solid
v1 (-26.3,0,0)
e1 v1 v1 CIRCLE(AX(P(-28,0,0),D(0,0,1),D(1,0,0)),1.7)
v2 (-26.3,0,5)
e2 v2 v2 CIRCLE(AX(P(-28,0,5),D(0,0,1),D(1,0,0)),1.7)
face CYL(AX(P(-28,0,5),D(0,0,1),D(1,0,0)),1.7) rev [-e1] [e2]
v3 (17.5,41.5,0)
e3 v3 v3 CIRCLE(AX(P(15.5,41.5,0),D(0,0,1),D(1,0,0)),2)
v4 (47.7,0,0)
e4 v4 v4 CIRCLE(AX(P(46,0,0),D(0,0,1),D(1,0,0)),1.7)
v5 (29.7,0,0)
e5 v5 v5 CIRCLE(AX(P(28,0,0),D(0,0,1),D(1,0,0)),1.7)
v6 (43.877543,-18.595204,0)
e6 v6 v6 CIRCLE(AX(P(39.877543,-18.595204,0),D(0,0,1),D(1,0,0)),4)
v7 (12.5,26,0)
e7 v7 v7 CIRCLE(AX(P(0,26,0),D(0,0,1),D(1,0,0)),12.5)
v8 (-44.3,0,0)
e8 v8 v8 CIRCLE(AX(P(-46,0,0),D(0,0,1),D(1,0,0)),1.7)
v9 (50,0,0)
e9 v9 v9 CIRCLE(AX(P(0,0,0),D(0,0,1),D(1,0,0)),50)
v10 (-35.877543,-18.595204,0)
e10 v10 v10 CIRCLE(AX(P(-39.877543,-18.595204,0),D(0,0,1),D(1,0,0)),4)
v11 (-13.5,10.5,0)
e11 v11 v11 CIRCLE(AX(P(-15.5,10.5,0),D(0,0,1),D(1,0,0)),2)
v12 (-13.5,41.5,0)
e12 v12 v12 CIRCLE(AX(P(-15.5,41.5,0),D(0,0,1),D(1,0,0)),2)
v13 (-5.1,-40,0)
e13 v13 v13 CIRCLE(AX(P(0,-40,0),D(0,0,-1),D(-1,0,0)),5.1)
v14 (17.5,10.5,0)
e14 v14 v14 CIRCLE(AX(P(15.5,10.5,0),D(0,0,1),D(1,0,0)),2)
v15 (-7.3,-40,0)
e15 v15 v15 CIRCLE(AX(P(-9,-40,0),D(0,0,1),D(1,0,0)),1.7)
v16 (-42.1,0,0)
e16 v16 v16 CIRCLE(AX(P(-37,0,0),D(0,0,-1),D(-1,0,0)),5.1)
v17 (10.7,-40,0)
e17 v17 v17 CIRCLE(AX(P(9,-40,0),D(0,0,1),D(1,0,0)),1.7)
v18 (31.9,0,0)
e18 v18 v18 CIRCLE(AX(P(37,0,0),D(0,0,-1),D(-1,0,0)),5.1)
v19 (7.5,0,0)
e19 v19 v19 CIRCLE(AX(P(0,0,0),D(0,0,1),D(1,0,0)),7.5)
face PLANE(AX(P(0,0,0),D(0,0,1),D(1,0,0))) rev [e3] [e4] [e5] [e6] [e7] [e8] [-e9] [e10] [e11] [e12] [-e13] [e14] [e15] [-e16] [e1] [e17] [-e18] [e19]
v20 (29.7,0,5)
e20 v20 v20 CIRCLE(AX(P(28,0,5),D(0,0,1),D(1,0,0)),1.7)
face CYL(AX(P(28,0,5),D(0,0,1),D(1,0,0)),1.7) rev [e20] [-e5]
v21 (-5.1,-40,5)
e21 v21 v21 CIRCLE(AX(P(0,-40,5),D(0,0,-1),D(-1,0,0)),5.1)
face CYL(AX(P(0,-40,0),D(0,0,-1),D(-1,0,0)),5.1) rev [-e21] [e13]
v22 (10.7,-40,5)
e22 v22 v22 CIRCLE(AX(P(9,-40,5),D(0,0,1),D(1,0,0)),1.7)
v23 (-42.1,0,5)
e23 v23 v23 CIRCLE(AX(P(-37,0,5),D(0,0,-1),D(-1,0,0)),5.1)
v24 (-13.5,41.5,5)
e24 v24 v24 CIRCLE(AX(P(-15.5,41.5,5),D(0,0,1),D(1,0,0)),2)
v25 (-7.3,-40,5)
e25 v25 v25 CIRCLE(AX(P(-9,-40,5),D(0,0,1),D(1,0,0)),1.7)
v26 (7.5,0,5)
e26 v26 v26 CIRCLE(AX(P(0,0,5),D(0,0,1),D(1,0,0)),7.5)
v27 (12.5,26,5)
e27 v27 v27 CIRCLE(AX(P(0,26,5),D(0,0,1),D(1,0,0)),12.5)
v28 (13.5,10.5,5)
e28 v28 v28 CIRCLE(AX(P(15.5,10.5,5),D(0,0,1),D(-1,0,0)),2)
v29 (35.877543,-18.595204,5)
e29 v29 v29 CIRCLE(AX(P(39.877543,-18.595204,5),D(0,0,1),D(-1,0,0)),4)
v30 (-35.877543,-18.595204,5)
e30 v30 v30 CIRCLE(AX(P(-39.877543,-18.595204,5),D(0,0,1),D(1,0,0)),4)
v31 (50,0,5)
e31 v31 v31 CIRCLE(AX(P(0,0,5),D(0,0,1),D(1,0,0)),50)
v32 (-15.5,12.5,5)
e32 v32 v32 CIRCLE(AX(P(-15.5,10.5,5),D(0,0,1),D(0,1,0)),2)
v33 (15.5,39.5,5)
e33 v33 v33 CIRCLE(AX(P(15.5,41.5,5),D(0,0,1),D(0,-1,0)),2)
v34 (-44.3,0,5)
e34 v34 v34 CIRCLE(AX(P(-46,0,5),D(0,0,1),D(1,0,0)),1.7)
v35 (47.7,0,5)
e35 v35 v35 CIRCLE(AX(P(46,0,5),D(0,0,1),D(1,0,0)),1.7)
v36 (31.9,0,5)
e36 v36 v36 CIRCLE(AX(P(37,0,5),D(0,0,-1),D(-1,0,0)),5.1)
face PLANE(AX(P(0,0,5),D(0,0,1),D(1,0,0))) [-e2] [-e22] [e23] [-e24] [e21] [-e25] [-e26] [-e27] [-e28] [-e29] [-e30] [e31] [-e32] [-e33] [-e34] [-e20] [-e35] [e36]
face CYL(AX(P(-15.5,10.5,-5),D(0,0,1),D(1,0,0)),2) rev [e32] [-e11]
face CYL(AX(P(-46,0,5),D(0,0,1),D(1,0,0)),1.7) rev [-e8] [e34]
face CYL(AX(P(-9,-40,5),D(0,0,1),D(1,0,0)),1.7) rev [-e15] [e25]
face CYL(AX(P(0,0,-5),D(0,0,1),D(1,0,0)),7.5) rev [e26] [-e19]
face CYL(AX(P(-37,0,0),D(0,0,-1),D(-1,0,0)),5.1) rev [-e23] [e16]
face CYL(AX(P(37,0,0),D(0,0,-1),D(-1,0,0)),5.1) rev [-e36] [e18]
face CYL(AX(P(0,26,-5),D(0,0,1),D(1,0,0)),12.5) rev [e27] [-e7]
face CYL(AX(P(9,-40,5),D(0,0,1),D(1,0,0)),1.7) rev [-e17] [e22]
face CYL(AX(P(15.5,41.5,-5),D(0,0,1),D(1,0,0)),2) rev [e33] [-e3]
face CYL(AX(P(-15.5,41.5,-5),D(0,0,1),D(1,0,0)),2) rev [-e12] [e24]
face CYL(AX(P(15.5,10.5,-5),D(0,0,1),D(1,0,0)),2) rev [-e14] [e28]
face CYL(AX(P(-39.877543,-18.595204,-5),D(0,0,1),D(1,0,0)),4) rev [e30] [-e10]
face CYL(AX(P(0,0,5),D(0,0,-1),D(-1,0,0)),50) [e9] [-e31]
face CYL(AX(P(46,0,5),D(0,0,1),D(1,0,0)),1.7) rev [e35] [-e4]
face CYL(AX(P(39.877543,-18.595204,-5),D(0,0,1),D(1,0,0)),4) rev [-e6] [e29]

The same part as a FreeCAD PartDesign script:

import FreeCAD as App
import Part
import Sketcher
from FreeCAD import Vector

doc = App.newDocument("Part")
params = doc.addObject("Spreadsheet::Sheet", "Params")
for row, (alias, value) in enumerate([
    ("sketch1_diameter", "100 mm"),
    ("pad1_length", "5 mm"),
    ("sketch2_diameter", "10.2 mm"),
    ("hole_diameter", "10.2 mm"),
    ("sketch3_diameter", "3.4 mm"),
    ("hole2_diameter", "3.4 mm"),
    ("sketch4_diameter", "25 mm"),
    ("pocket1_length", "10 mm"),
    ("sketch5_diameter", "4 mm"),
    ("pocket2_length", "10 mm"),
    ("sketch6_diameter", "8 mm"),
    ("pocket3_length", "10 mm"),
    ("sketch7_diameter", "15 mm"),
    ("pocket4_length", "10 mm"),
], start=1):
    params.set(f"A{row}", alias)
    params.set(f"B{row}", "=" + value)
    params.setAlias(f"B{row}", alias)

body = doc.addObject("PartDesign::Body", "Body")

# Sketch on XY plane
sketch1 = body.newObject("Sketcher::SketchObject", "Sketch")
sketch1.AttachmentSupport = (doc.getObject("XY_Plane"), [""])
sketch1.MapMode = "FlatFace"
sketch1.addGeometry(Part.Circle(Vector(0, 0, 0), Vector(0, 0, 1), 50), False)
sketch1.addConstraint(Sketcher.Constraint("Coincident", 0, 3, -1, 1))
sketch1.addConstraint(Sketcher.Constraint("Diameter", 0, 100.0))
sketch1.setExpression("Constraints[1]", "Params.sketch1_diameter")
pad1 = body.newObject("PartDesign::Pad", "Pad")
pad1.Profile = sketch1
pad1.setExpression("Length", "Params.pad1_length")

# Sketch on XY plane
sketch2 = body.newObject("Sketcher::SketchObject", "Sketch001")
sketch2.AttachmentSupport = (doc.getObject("XY_Plane"), [""])
sketch2.MapMode = "FlatFace"
sketch2.addGeometry(Part.Circle(Vector(-37, 0, 0), Vector(0, 0, 1), 5), False)
sketch2.addGeometry(Part.Circle(Vector(37, 0, 0), Vector(0, 0, 1), 5), False)
sketch2.addGeometry(Part.Circle(Vector(0, -40, 0), Vector(0, 0, 1), 5), False)
sketch2.addConstraint(Sketcher.Constraint("Equal", 0, 1))
sketch2.addConstraint(Sketcher.Constraint("Equal", 1, 2))
sketch2.addConstraint(Sketcher.Constraint("Symmetric", 0, 3, 1, 3, -1, 1))
sketch2.addConstraint(Sketcher.Constraint("PointOnObject", 0, 3, -1))
sketch2.addConstraint(Sketcher.Constraint("PointOnObject", 2, 3, -2))
sketch2.addConstraint(Sketcher.Constraint("Diameter", 0, 10.2))
sketch2.addConstraint(Sketcher.Constraint("DistanceX", 0, 3, -1, 1, 37.0))
sketch2.addConstraint(Sketcher.Constraint("DistanceY", 2, 3, -1, 1, 40.0))
sketch2.setExpression("Constraints[5]", "Params.sketch2_diameter")
doc.recompute()
hole = body.newObject("PartDesign::Hole", "Hole")
hole.Profile = sketch2
hole.ThreadType = "None"
hole.setExpression("Diameter", "Params.hole_diameter")
hole.DepthType = "ThroughAll"
hole.Reversed = True

# Sketch on XY plane
sketch3 = body.newObject("Sketcher::SketchObject", "Sketch002")
sketch3.AttachmentSupport = (doc.getObject("XY_Plane"), [""])
sketch3.MapMode = "FlatFace"
sketch3.AttachmentOffset = App.Placement(Vector(0, 0, 5), App.Rotation())
sketch3.addGeometry(Part.Circle(Vector(46, 0, 0), Vector(0, 0, 1), 1.7), False)
sketch3.addGeometry(Part.Circle(Vector(28, 0, 0), Vector(0, 0, 1), 1.7), False)
sketch3.addGeometry(Part.Circle(Vector(9, -40, 0), Vector(0, 0, 1), 1.7), False)
sketch3.addGeometry(Part.Circle(Vector(-9, -40, 0), Vector(0, 0, 1), 1.7), False)
sketch3.addGeometry(Part.Circle(Vector(-46, 0, 0), Vector(0, 0, 1), 1.7), False)
sketch3.addGeometry(Part.Circle(Vector(-28, 0, 0), Vector(0, 0, 1), 1.7), False)
sketch3.addConstraint(Sketcher.Constraint("Equal", 0, 1))
sketch3.addConstraint(Sketcher.Constraint("Equal", 1, 2))
sketch3.addConstraint(Sketcher.Constraint("Equal", 2, 3))
sketch3.addConstraint(Sketcher.Constraint("Equal", 3, 4))
sketch3.addConstraint(Sketcher.Constraint("Equal", 4, 5))
sketch3.addConstraint(Sketcher.Constraint("Symmetric", 0, 3, 4, 3, -1, 1))
sketch3.addConstraint(Sketcher.Constraint("Symmetric", 1, 3, 5, 3, -1, 1))
sketch3.addConstraint(Sketcher.Constraint("Symmetric", 2, 3, 3, 3, -2))
sketch3.addConstraint(Sketcher.Constraint("PointOnObject", 0, 3, -1))
sketch3.addConstraint(Sketcher.Constraint("PointOnObject", 1, 3, -1))
sketch3.addConstraint(Sketcher.Constraint("Diameter", 0, 3.4))
sketch3.addConstraint(Sketcher.Constraint("DistanceX", -1, 1, 0, 3, 46.0))
sketch3.addConstraint(Sketcher.Constraint("DistanceX", -1, 1, 1, 3, 28.0))
sketch3.addConstraint(Sketcher.Constraint("DistanceX", -1, 1, 2, 3, 9.0))
sketch3.addConstraint(Sketcher.Constraint("DistanceY", 2, 3, -1, 1, 40.0))
sketch3.setExpression("Constraints[10]", "Params.sketch3_diameter")
doc.recompute()
hole2 = body.newObject("PartDesign::Hole", "Hole001")
hole2.Profile = sketch3
hole2.ThreadType = "None"
hole2.setExpression("Diameter", "Params.hole2_diameter")
hole2.DepthType = "ThroughAll"

# Sketch on XY plane
sketch4 = body.newObject("Sketcher::SketchObject", "Sketch003")
sketch4.AttachmentSupport = (doc.getObject("XY_Plane"), [""])
sketch4.MapMode = "FlatFace"
sketch4.AttachmentOffset = App.Placement(Vector(0, 0, 5), App.Rotation())
sketch4.addGeometry(Part.Circle(Vector(0, 26, 0), Vector(0, 0, 1), 12), False)
sketch4.addConstraint(Sketcher.Constraint("PointOnObject", 0, 3, -2))
sketch4.addConstraint(Sketcher.Constraint("Diameter", 0, 25.0))
sketch4.addConstraint(Sketcher.Constraint("DistanceY", -1, 1, 0, 3, 26.0))
sketch4.setExpression("Constraints[1]", "Params.sketch4_diameter")
pocket1 = body.newObject("PartDesign::Pocket", "Pocket")
pocket1.Profile = sketch4
pocket1.setExpression("Length", "Params.pocket1_length")

# Sketch on XY plane
sketch5 = body.newObject("Sketcher::SketchObject", "Sketch004")
sketch5.AttachmentSupport = (doc.getObject("XY_Plane"), [""])
sketch5.MapMode = "FlatFace"
sketch5.AttachmentOffset = App.Placement(Vector(0, 0, 5), App.Rotation())
sketch5.addGeometry(Part.Circle(Vector(-15.5, 41.5, 0), Vector(0, 0, 1), 2), False)
sketch5.addConstraint(Sketcher.Constraint("Diameter", 0, 4.0))
sketch5.addConstraint(Sketcher.Constraint("DistanceX", 0, 3, -1, 1, 15.5))
sketch5.addConstraint(Sketcher.Constraint("DistanceY", -1, 1, 0, 3, 41.5))
sketch5.setExpression("Constraints[0]", "Params.sketch5_diameter")
pocket2 = body.newObject("PartDesign::Pocket", "Pocket001")
pocket2.Profile = sketch5
pocket2.setExpression("Length", "Params.pocket2_length")
doc.recompute()

datumline = body.newObject("PartDesign::Line", "DatumLine")
datumline.Placement = App.Placement(Vector(0, 26, 0), App.Rotation(Vector(0, 0, 1), Vector(0, 0, 1)))
polarpattern = body.newObject("PartDesign::PolarPattern", "PolarPattern")
polarpattern.Originals = [pocket2]
polarpattern.Axis = (datumline, [""])
polarpattern.Angle = 360
polarpattern.Occurrences = 4
body.Tip = polarpattern

# Sketch on XY plane
sketch6 = body.newObject("Sketcher::SketchObject", "Sketch005")
sketch6.AttachmentSupport = (doc.getObject("XY_Plane"), [""])
sketch6.MapMode = "FlatFace"
sketch6.AttachmentOffset = App.Placement(Vector(0, 0, 5), App.Rotation())
sketch6.addGeometry(Part.Circle(Vector(-39.9, -18.6, 0), Vector(0, 0, 1), 4), False)
sketch6.addGeometry(Part.Circle(Vector(39.9, -18.6, 0), Vector(0, 0, 1), 4), False)
sketch6.addConstraint(Sketcher.Constraint("Equal", 0, 1))
sketch6.addConstraint(Sketcher.Constraint("Symmetric", 0, 3, 1, 3, -2))
sketch6.addConstraint(Sketcher.Constraint("Diameter", 0, 8.0))
sketch6.addConstraint(Sketcher.Constraint("DistanceX", 0, 3, -1, 1, 39.877543))
sketch6.addConstraint(Sketcher.Constraint("DistanceY", 0, 3, -1, 1, 18.595204))
sketch6.setExpression("Constraints[2]", "Params.sketch6_diameter")
pocket3 = body.newObject("PartDesign::Pocket", "Pocket002")
pocket3.Profile = sketch6
pocket3.setExpression("Length", "Params.pocket3_length")

# Sketch on XY plane
sketch7 = body.newObject("Sketcher::SketchObject", "Sketch006")
sketch7.AttachmentSupport = (doc.getObject("XY_Plane"), [""])
sketch7.MapMode = "FlatFace"
sketch7.AttachmentOffset = App.Placement(Vector(0, 0, 5), App.Rotation())
sketch7.addGeometry(Part.Circle(Vector(0, 0, 0), Vector(0, 0, 1), 8), False)
sketch7.addConstraint(Sketcher.Constraint("Coincident", 0, 3, -1, 1))
sketch7.addConstraint(Sketcher.Constraint("Diameter", 0, 15.0))
sketch7.setExpression("Constraints[1]", "Params.sketch7_diameter")
pocket4 = body.newObject("PartDesign::Pocket", "Pocket003")
pocket4.Profile = sketch7
pocket4.setExpression("Length", "Params.pocket4_length")

doc.recompute()
